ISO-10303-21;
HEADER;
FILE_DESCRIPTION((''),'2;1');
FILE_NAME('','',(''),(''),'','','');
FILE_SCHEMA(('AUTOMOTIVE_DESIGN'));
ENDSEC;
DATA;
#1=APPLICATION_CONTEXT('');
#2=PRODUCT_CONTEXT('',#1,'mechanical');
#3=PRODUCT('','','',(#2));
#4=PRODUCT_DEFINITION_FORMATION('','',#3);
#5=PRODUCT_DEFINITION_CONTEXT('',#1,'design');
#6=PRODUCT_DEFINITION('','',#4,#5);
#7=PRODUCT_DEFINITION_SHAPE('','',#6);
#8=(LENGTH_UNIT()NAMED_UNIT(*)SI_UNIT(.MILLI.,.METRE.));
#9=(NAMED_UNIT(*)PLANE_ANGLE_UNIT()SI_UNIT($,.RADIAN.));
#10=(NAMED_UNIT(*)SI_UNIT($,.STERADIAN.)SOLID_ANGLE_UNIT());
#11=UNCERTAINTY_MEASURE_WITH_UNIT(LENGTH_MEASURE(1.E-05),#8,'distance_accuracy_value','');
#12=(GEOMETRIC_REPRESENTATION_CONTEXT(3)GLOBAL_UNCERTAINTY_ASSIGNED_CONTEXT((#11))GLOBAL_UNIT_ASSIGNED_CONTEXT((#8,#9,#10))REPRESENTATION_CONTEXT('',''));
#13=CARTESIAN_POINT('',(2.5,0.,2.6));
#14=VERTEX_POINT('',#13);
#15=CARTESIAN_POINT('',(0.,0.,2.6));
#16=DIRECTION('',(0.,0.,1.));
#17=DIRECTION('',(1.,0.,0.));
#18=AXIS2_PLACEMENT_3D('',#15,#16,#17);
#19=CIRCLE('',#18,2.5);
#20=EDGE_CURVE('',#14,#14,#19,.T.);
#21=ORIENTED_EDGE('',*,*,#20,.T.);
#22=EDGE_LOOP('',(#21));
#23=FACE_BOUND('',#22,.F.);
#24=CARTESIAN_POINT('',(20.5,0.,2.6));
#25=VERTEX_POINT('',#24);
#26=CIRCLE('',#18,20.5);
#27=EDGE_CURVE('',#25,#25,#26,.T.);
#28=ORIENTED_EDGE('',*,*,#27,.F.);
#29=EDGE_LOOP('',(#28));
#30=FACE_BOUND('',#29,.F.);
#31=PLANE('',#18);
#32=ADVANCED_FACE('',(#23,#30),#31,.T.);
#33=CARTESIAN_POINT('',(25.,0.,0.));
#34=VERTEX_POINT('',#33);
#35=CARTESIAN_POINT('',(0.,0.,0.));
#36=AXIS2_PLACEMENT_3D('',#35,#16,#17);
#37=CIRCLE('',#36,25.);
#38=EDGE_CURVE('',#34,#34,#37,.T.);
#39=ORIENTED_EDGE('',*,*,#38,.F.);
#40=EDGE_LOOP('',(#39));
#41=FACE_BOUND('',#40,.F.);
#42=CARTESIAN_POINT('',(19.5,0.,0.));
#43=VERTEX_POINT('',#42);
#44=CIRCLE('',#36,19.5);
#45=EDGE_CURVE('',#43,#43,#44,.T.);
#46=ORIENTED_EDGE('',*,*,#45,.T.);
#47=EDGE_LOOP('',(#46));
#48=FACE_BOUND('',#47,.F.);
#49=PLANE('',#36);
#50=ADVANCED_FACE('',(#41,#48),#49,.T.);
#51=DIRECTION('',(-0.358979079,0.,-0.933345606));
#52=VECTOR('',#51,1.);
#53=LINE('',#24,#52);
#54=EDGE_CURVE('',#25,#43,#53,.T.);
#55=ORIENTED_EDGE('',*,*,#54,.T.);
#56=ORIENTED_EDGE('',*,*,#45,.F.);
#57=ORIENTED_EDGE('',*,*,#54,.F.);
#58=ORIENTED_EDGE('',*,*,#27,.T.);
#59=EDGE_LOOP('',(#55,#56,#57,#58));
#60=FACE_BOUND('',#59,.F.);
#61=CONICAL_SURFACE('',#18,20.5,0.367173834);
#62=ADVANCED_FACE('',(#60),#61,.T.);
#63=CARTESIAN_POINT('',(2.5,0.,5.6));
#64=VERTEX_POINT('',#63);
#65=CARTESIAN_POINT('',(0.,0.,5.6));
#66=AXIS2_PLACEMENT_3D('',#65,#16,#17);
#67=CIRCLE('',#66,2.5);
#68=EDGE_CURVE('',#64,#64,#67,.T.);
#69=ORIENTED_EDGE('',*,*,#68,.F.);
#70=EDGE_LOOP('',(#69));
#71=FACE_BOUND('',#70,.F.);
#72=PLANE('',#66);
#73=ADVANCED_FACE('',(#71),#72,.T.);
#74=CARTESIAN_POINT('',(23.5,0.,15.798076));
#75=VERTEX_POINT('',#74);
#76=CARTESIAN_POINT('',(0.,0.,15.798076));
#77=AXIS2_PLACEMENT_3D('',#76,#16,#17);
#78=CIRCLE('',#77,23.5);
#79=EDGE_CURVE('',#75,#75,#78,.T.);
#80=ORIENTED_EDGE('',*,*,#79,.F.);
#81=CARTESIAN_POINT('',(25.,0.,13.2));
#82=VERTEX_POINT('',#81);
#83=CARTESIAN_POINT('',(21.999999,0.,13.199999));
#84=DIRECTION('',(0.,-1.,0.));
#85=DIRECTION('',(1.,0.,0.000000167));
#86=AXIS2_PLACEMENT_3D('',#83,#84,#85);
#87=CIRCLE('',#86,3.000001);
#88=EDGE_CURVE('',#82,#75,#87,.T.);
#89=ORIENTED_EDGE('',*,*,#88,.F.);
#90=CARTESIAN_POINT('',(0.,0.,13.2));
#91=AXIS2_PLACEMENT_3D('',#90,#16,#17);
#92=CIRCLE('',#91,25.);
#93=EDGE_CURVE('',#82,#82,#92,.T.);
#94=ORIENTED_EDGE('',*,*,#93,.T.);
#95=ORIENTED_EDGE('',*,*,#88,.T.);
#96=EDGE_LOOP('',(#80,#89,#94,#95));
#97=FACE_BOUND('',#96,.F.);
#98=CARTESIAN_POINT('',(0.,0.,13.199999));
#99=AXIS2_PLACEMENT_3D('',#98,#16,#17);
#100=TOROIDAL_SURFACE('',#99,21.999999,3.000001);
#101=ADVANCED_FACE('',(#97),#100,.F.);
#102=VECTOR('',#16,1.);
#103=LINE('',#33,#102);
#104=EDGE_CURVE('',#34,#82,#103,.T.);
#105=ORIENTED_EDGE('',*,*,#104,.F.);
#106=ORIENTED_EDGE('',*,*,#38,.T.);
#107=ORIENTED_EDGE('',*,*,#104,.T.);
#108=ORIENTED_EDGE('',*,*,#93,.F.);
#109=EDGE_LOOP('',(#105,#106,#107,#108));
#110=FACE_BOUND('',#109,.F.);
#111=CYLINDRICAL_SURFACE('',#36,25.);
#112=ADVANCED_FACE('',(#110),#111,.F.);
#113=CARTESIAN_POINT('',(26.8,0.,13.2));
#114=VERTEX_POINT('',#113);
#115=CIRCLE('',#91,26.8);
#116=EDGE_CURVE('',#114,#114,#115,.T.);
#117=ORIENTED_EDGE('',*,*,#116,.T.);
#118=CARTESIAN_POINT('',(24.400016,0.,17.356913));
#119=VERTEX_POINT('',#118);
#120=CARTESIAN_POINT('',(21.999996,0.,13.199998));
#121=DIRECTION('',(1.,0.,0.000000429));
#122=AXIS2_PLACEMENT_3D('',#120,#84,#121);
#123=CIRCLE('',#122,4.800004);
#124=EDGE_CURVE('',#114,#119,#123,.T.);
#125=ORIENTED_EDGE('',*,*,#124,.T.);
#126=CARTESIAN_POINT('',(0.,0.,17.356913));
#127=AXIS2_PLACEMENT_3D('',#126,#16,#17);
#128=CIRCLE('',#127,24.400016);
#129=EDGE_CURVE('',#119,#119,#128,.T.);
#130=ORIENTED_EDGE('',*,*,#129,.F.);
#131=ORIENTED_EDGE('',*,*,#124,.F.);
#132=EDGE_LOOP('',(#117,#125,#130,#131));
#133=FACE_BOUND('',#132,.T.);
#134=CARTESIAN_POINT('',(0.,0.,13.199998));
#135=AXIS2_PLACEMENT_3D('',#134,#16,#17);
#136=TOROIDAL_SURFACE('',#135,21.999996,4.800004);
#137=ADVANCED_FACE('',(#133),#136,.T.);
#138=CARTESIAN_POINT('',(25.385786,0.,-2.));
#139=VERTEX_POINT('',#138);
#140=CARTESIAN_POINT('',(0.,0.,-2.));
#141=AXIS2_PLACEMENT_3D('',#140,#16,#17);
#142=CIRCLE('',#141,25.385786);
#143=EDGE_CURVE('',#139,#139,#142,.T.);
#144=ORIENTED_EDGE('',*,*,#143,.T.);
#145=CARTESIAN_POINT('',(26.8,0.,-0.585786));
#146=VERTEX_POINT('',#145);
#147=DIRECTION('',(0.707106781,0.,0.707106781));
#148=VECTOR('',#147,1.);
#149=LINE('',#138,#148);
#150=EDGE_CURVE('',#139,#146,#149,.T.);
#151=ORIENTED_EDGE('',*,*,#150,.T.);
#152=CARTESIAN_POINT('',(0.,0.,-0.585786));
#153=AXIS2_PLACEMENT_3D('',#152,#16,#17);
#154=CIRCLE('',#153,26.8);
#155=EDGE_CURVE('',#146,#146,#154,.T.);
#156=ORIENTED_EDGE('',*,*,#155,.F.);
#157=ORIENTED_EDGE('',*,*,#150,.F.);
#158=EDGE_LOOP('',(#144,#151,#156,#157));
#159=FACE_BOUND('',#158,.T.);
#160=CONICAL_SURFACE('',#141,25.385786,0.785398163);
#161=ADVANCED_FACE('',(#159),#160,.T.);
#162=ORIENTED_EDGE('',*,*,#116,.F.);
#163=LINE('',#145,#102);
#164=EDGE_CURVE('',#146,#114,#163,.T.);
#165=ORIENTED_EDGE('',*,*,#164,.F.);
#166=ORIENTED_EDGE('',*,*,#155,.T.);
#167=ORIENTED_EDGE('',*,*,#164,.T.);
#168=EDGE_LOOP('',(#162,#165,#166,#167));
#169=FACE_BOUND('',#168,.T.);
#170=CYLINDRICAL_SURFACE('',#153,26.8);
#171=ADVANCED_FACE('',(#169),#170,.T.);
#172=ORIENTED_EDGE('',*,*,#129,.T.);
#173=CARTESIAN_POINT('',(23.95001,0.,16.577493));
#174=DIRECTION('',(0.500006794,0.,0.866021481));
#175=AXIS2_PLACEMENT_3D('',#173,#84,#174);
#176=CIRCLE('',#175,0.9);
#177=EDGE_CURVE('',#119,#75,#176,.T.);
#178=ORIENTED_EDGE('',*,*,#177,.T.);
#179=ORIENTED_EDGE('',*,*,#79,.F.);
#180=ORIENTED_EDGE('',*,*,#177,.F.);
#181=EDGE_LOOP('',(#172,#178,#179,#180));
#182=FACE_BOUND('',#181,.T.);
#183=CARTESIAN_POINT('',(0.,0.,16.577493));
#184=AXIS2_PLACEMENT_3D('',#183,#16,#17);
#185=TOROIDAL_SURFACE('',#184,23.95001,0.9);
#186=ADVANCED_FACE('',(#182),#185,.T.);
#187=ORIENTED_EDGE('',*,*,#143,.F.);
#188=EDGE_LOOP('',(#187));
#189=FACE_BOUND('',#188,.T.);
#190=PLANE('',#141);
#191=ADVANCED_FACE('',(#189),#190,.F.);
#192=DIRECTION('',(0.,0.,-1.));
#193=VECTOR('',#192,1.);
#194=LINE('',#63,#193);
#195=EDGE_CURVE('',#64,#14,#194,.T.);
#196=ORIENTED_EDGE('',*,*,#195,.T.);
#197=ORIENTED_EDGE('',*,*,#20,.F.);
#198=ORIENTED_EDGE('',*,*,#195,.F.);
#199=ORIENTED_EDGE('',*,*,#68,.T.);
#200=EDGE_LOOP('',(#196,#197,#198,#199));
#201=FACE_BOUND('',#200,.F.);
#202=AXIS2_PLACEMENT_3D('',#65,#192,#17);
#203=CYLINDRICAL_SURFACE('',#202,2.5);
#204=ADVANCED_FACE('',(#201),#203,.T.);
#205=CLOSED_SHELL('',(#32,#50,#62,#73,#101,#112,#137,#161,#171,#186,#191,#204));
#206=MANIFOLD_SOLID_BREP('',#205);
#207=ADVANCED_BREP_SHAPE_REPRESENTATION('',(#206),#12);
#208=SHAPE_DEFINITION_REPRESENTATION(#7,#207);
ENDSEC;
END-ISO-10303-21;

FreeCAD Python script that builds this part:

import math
import FreeCAD as App
import Part
import Sketcher
from FreeCAD import Vector
Q = App.Units.Quantity

doc = App.newDocument("Part")
body = doc.addObject("PartDesign::Body", "Body")

# Sketch on XZ plane
sketch1 = body.newObject("Sketcher::SketchObject", "Sketch")
sketch1.AttachmentSupport = (doc.getObject("XZ_Plane"), [""])
sketch1.MapMode = "FlatFace"
sketch1.addGeometry(Part.LineSegment(Vector(2.5, 5.6, 0), Vector(0, 5.6, 0)), False)
sketch1.addGeometry(Part.LineSegment(Vector(0, 5.6, 0), Vector(0, -2, 0)), False)
sketch1.addGeometry(Part.LineSegment(Vector(0, -2, 0), Vector(25.4, -2, 0)), False)
sketch1.addGeometry(Part.LineSegment(Vector(25.4, -2, 0), Vector(26.8, -0.6, 0)), False)
sketch1.addGeometry(Part.LineSegment(Vector(26.8, -0.6, 0), Vector(26.8, 13.2, 0)), False)
sketch1.addGeometry(Part.ArcOfCircle(Part.Circle(Vector(22, 13.2, 0), Vector(0, 0, 1), 4.8), math.radians(0), math.radians(60)), False)
sketch1.addGeometry(Part.ArcOfCircle(Part.Circle(Vector(24, 16.6, 0), Vector(0, 0, 1), 0.9), math.radians(60), math.radians(240)), False)
sketch1.addGeometry(Part.ArcOfCircle(Part.Circle(Vector(22, 13.2, 0), Vector(0, 0, 1), 3), math.radians(0), math.radians(60)), False)
sketch1.addGeometry(Part.LineSegment(Vector(25, 13.2, 0), Vector(25, 0, 0)), False)
sketch1.addGeometry(Part.LineSegment(Vector(25, 0, 0), Vector(19.5, 0, 0)), False)
sketch1.addGeometry(Part.LineSegment(Vector(19.5, 0, 0), Vector(20.5, 2.6, 0)), False)
sketch1.addGeometry(Part.LineSegment(Vector(20.5, 2.6, 0), Vector(2.5, 2.6, 0)), False)
sketch1.addGeometry(Part.LineSegment(Vector(2.5, 2.6, 0), Vector(2.5, 5.6, 0)), False)
sketch1.addConstraint(Sketcher.Constraint("Coincident", 0, 2, 1, 1))
sketch1.addConstraint(Sketcher.Constraint("Coincident", 1, 2, 2, 1))
sketch1.addConstraint(Sketcher.Constraint("Coincident", 2, 2, 3, 1))
sketch1.addConstraint(Sketcher.Constraint("Coincident", 3, 2, 4, 1))
sketch1.addConstraint(Sketcher.Constraint("Tangent", 4, 2, 5, 1))
sketch1.addConstraint(Sketcher.Constraint("Coincident", 5, 2, 6, 1))
sketch1.addConstraint(Sketcher.Constraint("Coincident", 6, 2, 7, 2))
sketch1.addConstraint(Sketcher.Constraint("Tangent", 7, 1, 8, 1))
sketch1.addConstraint(Sketcher.Constraint("Coincident", 8, 2, 9, 1))
sketch1.addConstraint(Sketcher.Constraint("Coincident", 9, 2, 10, 1))
sketch1.addConstraint(Sketcher.Constraint("Coincident", 10, 2, 11, 1))
sketch1.addConstraint(Sketcher.Constraint("Coincident", 11, 2, 12, 1))
sketch1.addConstraint(Sketcher.Constraint("Coincident", 12, 2, 0, 1))
sketch1.addConstraint(Sketcher.Constraint("Horizontal", 0))
sketch1.addConstraint(Sketcher.Constraint("Vertical", 1))
sketch1.addConstraint(Sketcher.Constraint("Horizontal", 2))
sketch1.addConstraint(Sketcher.Constraint("Vertical", 4))
sketch1.addConstraint(Sketcher.Constraint("Vertical", 8))
sketch1.addConstraint(Sketcher.Constraint("Horizontal", 9))
sketch1.addConstraint(Sketcher.Constraint("Horizontal", 11))
sketch1.addConstraint(Sketcher.Constraint("Vertical", 12))
sketch1.addConstraint(Sketcher.Constraint("Coincident", 7, 3, 5, 3))
sketch1.addConstraint(Sketcher.Constraint("PointOnObject", 0, 2, -2))
sketch1.addConstraint(Sketcher.Constraint("PointOnObject", 8, 2, -1))
sketch1.addConstraint(Sketcher.Constraint("Radius", 7, Q("3.000001 mm")))
sketch1.addConstraint(Sketcher.Constraint("Radius", 6, Q("0.9 mm")))
sketch1.addConstraint(Sketcher.Constraint("DistanceX", 11, 2, 11, 1, Q("18 mm")))
sketch1.addConstraint(Sketcher.Constraint("DistanceY", 12, 1, 12, 2, Q("3 mm")))
sketch1.addConstraint(Sketcher.Constraint("Angle", 3, Q("45 deg")))
sketch1.addConstraint(Sketcher.Constraint("Distance", 3, Q("2.000001 mm")))
sketch1.addConstraint(Sketcher.Constraint("DistanceX", 0, 2, 0, 1, Q("2.5 mm")))
sketch1.addConstraint(Sketcher.Constraint("DistanceX", 9, 2, 9, 1, Q("5.5 mm")))
sketch1.addConstraint(Sketcher.Constraint("DistanceY", 1, 2, 1, 1, Q("7.6 mm")))
sketch1.addConstraint(Sketcher.Constraint("DistanceY", 8, 2, 8, 1, Q("13.2 mm")))
sketch1.addConstraint(Sketcher.Constraint("DistanceX", -1, 1, 7, 3, Q("22 mm")))
sketch1.addConstraint(Sketcher.Constraint("DistanceY", 1, 2, -1, 1, Q("2 mm")))
sketch1.addConstraint(Sketcher.Constraint("DistanceX", -1, 1, 6, 2, Q("23.5 mm")))
sketch1.addConstraint(Sketcher.Constraint("DistanceY", 3, 2, 5, 2, Q("17.942699 mm")))
sketch1.addConstraint(Sketcher.Constraint("DistanceX", -1, 1, 6, 3, Q("23.95001 mm")))
revolution = body.newObject("PartDesign::Revolution", "Revolution")
revolution.Profile = sketch1
revolution.ReferenceAxis = (sketch1, ["V_Axis"])
revolution.Angle = 360

doc.recompute()
